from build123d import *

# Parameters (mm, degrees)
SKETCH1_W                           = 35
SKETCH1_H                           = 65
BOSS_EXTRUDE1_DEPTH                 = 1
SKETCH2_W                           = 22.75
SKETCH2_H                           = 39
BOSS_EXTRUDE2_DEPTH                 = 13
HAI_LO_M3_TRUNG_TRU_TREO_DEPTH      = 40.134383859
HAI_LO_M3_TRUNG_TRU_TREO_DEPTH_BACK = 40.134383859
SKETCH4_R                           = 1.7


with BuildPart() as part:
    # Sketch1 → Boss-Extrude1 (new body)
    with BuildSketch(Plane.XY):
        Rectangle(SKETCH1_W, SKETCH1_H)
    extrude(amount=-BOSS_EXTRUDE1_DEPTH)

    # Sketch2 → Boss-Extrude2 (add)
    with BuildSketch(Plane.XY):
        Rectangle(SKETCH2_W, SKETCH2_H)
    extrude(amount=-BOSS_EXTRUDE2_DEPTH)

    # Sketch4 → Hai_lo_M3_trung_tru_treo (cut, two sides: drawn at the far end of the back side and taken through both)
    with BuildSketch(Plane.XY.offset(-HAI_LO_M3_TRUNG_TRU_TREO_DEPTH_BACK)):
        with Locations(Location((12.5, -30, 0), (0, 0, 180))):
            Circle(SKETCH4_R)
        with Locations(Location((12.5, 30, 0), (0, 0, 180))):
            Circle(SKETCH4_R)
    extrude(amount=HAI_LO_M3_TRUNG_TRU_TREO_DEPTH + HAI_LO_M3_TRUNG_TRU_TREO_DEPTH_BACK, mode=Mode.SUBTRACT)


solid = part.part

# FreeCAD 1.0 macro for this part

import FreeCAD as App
import Part
import Sketcher
Q = App.Units.Quantity

doc = App.newDocument("Part")
body = doc.addObject("PartDesign::Body", "Body")

# Sketch on XY plane
sketch1 = body.newObject("Sketcher::SketchObject", "Sketch")
sketch1.AttachmentSupport = (doc.getObject("XY_Plane"), [""])
sketch1.MapMode = "FlatFace"
sketch1.addGeometry(Part.LineSegment(App.Vector(-18, 32, 0), App.Vector(-18, -32, 0)), False)
sketch1.addGeometry(Part.LineSegment(App.Vector(-18, -32, 0), App.Vector(18, -32, 0)), False)
sketch1.addGeometry(Part.LineSegment(App.Vector(18, -32, 0), App.Vector(18, 32, 0)), False)
sketch1.addGeometry(Part.LineSegment(App.Vector(18, 32, 0), App.Vector(-18, 32, 0)), False)
sketch1.addConstraint(Sketcher.Constraint("Coincident", 0, 2, 1, 1))
sketch1.addConstraint(Sketcher.Constraint("Coincident", 1, 2, 2, 1))
sketch1.addConstraint(Sketcher.Constraint("Coincident", 2, 2, 3, 1))
sketch1.addConstraint(Sketcher.Constraint("Coincident", 3, 2, 0, 1))
sketch1.addConstraint(Sketcher.Constraint("Vertical", 0))
sketch1.addConstraint(Sketcher.Constraint("Horizontal", 1))
sketch1.addConstraint(Sketcher.Constraint("Vertical", 2))
sketch1.addConstraint(Sketcher.Constraint("Horizontal", 3))
sketch1.addConstraint(Sketcher.Constraint("Symmetric", 0, 2, 2, 2, -1, 1))
sketch1.addConstraint(Sketcher.Constraint("DistanceX", 1, 1, 1, 2, Q("35 mm")))
sketch1.addConstraint(Sketcher.Constraint("DistanceY", 0, 2, 0, 1, Q("65 mm")))
pad1 = body.newObject("PartDesign::Pad", "Pad")
pad1.Profile = sketch1
pad1.Length = 1
pad1.Reversed = True

# Sketch on XY plane
sketch2 = body.newObject("Sketcher::SketchObject", "Sketch001")
sketch2.AttachmentSupport = (doc.getObject("XY_Plane"), [""])
sketch2.MapMode = "FlatFace"
sketch2.addGeometry(Part.LineSegment(App.Vector(-11, 20, 0), App.Vector(-11, -20, 0)), False)
sketch2.addGeometry(Part.LineSegment(App.Vector(-11, -20, 0), App.Vector(11, -20, 0)), False)
sketch2.addGeometry(Part.LineSegment(App.Vector(11, -20, 0), App.Vector(11, 20, 0)), False)
sketch2.addGeometry(Part.LineSegment(App.Vector(11, 20, 0), App.Vector(-11, 20, 0)), False)
sketch2.addConstraint(Sketcher.Constraint("Coincident", 0, 2, 1, 1))
sketch2.addConstraint(Sketcher.Constraint("Coincident", 1, 2, 2, 1))
sketch2.addConstraint(Sketcher.Constraint("Coincident", 2, 2, 3, 1))
sketch2.addConstraint(Sketcher.Constraint("Coincident", 3, 2, 0, 1))
sketch2.addConstraint(Sketcher.Constraint("Vertical", 0))
sketch2.addConstraint(Sketcher.Constraint("Horizontal", 1))
sketch2.addConstraint(Sketcher.Constraint("Vertical", 2))
sketch2.addConstraint(Sketcher.Constraint("Horizontal", 3))
sketch2.addConstraint(Sketcher.Constraint("Symmetric", 0, 2, 2, 2, -1, 1))
sketch2.addConstraint(Sketcher.Constraint("DistanceY", 0, 2, 0, 1, Q("39 mm")))
sketch2.addConstraint(Sketcher.Constraint("DistanceX", 1, 1, 1, 2, Q("22.75 mm")))
pad2 = body.newObject("PartDesign::Pad", "Pad001")
pad2.Profile = sketch2
pad2.Length = 13
pad2.Reversed = True

# Sketch on XY plane
sketch3 = body.newObject("Sketcher::SketchObject", "Sketch002")
sketch3.AttachmentSupport = (doc.getObject("XY_Plane"), [""])
sketch3.MapMode = "FlatFace"
sketch3.addGeometry(Part.Circle(App.Vector(12.5, -30, 0), App.Vector(0, 0, 1), 1.7), False)
sketch3.addGeometry(Part.Circle(App.Vector(12.5, 30, 0), App.Vector(0, 0, 1), 1.7), False)
sketch3.addConstraint(Sketcher.Constraint("Equal", 0, 1))
sketch3.addConstraint(Sketcher.Constraint("Symmetric", 0, 3, 1, 3, -1))
sketch3.addConstraint(Sketcher.Constraint("Diameter", 0, Q("3.4 mm")))
sketch3.addConstraint(Sketcher.Constraint("DistanceY", 0, 3, -1, 1, Q("30 mm")))
sketch3.addConstraint(Sketcher.Constraint("DistanceX", -1, 1, 0, 3, Q("12.5 mm")))
pocket1 = body.newObject("PartDesign::Pocket", "Pocket")
pocket1.Profile = sketch3
pocket1.Type = "ThroughAll"
pocket1.Midplane = True

doc.recompute()
